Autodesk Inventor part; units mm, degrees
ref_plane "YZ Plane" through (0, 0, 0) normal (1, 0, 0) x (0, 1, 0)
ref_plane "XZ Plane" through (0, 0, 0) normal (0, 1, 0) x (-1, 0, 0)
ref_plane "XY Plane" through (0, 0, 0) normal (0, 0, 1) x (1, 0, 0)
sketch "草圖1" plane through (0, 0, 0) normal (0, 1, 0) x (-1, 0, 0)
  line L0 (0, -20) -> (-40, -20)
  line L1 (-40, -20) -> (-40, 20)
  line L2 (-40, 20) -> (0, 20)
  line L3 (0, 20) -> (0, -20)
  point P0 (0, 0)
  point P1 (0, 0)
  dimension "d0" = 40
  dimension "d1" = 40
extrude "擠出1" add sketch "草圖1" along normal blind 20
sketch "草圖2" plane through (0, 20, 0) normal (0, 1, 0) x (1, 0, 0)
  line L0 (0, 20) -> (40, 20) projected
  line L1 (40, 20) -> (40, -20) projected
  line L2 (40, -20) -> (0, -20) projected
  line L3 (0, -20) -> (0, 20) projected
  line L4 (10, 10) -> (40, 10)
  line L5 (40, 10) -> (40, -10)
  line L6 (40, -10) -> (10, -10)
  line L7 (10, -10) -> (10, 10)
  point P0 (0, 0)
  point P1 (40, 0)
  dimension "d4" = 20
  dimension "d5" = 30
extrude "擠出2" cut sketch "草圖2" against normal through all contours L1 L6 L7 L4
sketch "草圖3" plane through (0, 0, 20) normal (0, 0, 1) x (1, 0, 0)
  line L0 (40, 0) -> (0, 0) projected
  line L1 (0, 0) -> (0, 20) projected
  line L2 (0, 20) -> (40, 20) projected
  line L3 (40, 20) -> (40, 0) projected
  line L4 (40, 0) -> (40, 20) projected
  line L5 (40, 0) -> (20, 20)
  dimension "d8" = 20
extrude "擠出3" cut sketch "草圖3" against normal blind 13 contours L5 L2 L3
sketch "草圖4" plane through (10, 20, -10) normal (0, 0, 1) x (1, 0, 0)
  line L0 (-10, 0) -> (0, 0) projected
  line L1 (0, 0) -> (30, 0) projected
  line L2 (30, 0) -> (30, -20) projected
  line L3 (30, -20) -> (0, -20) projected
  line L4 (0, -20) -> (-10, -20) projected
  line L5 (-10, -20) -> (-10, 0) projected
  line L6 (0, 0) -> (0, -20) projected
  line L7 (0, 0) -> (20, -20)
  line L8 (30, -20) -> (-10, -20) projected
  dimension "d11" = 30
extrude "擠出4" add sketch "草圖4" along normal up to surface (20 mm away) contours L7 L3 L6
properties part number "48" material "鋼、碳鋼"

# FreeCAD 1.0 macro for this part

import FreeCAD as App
import Part
import Sketcher
from FreeCAD import Vector
Q = App.Units.Quantity


def add_polygon(sketch, points):
    """Adds a closed chain of lines whose ends are joined by coincident constraints."""
    first, n = sketch.GeometryCount, len(points)
    for a, b in zip(points, points[1:] + points[:1]):
        sketch.addGeometry(Part.LineSegment(App.Vector(*a, 0), App.Vector(*b, 0)), False)
    for i in range(n):
        sketch.addConstraint(Sketcher.Constraint("Coincident", first + i, 2, first + (i + 1) % n, 1))

doc = App.newDocument("Part")
body = doc.addObject("PartDesign::Body", "Body")

# Sketch on XZ plane
sketch1 = body.newObject("Sketcher::SketchObject", "Sketch")
sketch1.AttachmentSupport = (doc.getObject("XZ_Plane"), [""])
sketch1.MapMode = "FlatFace"
add_polygon(sketch1, [(40, -20), (0, -20), (0, 20), (40, 20)])  # lines 0-3
sketch1.addConstraint([
    Sketcher.Constraint("Horizontal", 0),
    Sketcher.Constraint("Vertical", 1),
    Sketcher.Constraint("Horizontal", 2),
    Sketcher.Constraint("Vertical", 3),
    Sketcher.Constraint("Symmetric", 0, 2, 1, 2, -1, 1),
    Sketcher.Constraint("Equal", 2, 1),
    Sketcher.Constraint("DistanceX", 0, 2, 0, 1, Q("40 mm")),
])
pad1 = body.newObject("PartDesign::Pad", "Pad")
pad1.Profile = sketch1
pad1.Length = 20
pad1.Reversed = True

# Sketch on XZ plane
sketch2 = body.newObject("Sketcher::SketchObject", "Sketch001")
sketch2.AttachmentSupport = (doc.getObject("XZ_Plane"), [""])
sketch2.MapMode = "FlatFace"
sketch2.AttachmentOffset = App.Placement(Vector(0, 0, -20), App.Rotation())
add_polygon(sketch2, [(40, 10), (40, -10), (10, -10), (10, 10)])  # lines 0-3
sketch2.addConstraint([
    Sketcher.Constraint("Vertical", 0),
    Sketcher.Constraint("Horizontal", 1),
    Sketcher.Constraint("Vertical", 2),
    Sketcher.Constraint("Horizontal", 3),
    Sketcher.Constraint("DistanceX", 1, 2, 1, 1, Q("30 mm")),
    Sketcher.Constraint("DistanceY", 0, 2, 0, 1, Q("20 mm")),
    Sketcher.Constraint("DistanceX", -1, 1, 0, 2, Q("40 mm")),
    Sketcher.Constraint("DistanceY", 0, 2, -1, 1, Q("10 mm")),
])
pocket1 = body.newObject("PartDesign::Pocket", "Pocket")
pocket1.Profile = sketch2
pocket1.Type = "ThroughAll"
pocket1.Reversed = True

# Sketch on XY plane
sketch3 = body.newObject("Sketcher::SketchObject", "Sketch002")
sketch3.AttachmentSupport = (doc.getObject("XY_Plane"), [""])
sketch3.MapMode = "FlatFace"
sketch3.AttachmentOffset = App.Placement(Vector(0, 0, 20), App.Rotation())
add_polygon(sketch3, [(20, 20), (40, 0), (40, 20)])  # lines 0-2
sketch3.addConstraint([
    Sketcher.Constraint("Vertical", 1),
    Sketcher.Constraint("Horizontal", 2),
    Sketcher.Constraint("PointOnObject", 0, 2, -1),
    Sketcher.Constraint("Equal", 2, 1),
    Sketcher.Constraint("DistanceX", 2, 2, 2, 1, Q("20 mm")),
    Sketcher.Constraint("DistanceX", -1, 1, 2, 2, Q("20 mm")),
])
pocket2 = body.newObject("PartDesign::Pocket", "Pocket001")
pocket2.Profile = sketch3
pocket2.Length = 13

# Sketch on XY plane
sketch4 = body.newObject("Sketcher::SketchObject", "Sketch003")
sketch4.AttachmentSupport = (doc.getObject("XY_Plane"), [""])
sketch4.MapMode = "FlatFace"
sketch4.AttachmentOffset = App.Placement(Vector(0, 0, -10), App.Rotation())
add_polygon(sketch4, [(30, 0), (10, 20), (10, 0)])  # lines 0-2
sketch4.addConstraint([
    Sketcher.Constraint("Vertical", 1),
    Sketcher.Constraint("Horizontal", 2),
    Sketcher.Constraint("PointOnObject", 1, 2, -1),
    Sketcher.Constraint("Equal", 2, 1),
    Sketcher.Constraint("DistanceX", -1, 1, 2, 2, Q("30 mm")),
    Sketcher.Constraint("DistanceX", 2, 1, 2, 2, Q("20 mm")),
])
pad2 = body.newObject("PartDesign::Pad", "Pad001")
pad2.Profile = sketch4
pad2.Length = 20

doc.recompute()
